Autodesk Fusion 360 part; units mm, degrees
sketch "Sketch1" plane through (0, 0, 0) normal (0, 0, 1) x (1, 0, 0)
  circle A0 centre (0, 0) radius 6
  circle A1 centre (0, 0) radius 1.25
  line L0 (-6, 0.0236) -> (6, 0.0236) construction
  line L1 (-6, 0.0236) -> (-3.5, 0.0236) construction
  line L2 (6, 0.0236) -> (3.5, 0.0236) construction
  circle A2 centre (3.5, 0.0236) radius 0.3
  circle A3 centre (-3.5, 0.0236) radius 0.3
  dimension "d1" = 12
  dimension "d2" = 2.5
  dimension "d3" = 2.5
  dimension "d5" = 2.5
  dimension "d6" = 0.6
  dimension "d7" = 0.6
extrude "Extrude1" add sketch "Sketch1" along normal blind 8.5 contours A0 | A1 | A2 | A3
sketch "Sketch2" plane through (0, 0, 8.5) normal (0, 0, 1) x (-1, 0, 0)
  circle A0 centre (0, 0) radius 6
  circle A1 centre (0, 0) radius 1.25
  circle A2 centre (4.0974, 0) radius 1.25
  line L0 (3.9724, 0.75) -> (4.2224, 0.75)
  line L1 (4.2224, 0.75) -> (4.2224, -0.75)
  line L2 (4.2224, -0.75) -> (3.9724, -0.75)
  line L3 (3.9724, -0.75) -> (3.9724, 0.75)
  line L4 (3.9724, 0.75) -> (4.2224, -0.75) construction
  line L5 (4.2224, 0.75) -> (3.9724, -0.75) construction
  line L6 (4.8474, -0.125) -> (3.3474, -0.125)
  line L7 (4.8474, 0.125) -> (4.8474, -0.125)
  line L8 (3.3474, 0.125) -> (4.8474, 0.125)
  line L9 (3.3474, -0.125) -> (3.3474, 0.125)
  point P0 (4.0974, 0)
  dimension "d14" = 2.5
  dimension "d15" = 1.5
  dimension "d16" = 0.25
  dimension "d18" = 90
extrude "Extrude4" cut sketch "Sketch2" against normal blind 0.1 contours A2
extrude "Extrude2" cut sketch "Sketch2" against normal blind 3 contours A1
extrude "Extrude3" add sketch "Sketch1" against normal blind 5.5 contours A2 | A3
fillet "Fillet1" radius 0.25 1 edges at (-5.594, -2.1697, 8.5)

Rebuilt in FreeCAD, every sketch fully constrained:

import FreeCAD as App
import Part
import Sketcher


def edges_at(feature, points):
    """Names of the edges that pass closest to the given points."""
    edges = feature.Shape.Edges
    near = lambda p: min(range(len(edges)), key=lambda i: edges[i].distToShape(Part.Vertex(*p))[0])
    return sorted({f"Edge{near(p) + 1}" for p in points})

doc = App.newDocument("Part")
body = doc.addObject("PartDesign::Body", "Body")

# Sketch on XY plane
sketch1 = doc.addObject("Sketcher::SketchObject", "Sketch")
body.addObject(sketch1)
sketch1.AttachmentSupport = (doc.XY_Plane, [""])
sketch1.MapMode = "FlatFace"
sketch1.addGeometry(Part.Circle(App.Vector(0, 0, 0), App.Vector(0, 0, 1), 6), False)
sketch1.addConstraint([
    Sketcher.Constraint("Coincident", 0, 3, -1, 1),
    Sketcher.Constraint("Diameter", 0, 12.0),
])
pad1 = doc.addObject("PartDesign::Pad", "Pad")
body.addObject(pad1)
pad1.Profile = sketch1
pad1.Length = 8.5

# Sketch on XY plane
sketch2 = doc.addObject("Sketcher::SketchObject", "Sketch001")
body.addObject(sketch2)
sketch2.AttachmentSupport = (doc.XY_Plane, [""])
sketch2.MapMode = "FlatFace"
sketch2.AttachmentOffset = App.Placement(App.Vector(0, 0, 8.5), App.Rotation())
sketch2.addGeometry([
    Part.Circle(App.Vector(-4.1, 0, 0), App.Vector(0, 0, 1), 1.25),  # 0
    Part.LineSegment(App.Vector(-3.97, -0.12, 0), App.Vector(-3.97, -0.75, 0)),  # 1
    Part.LineSegment(App.Vector(-3.97, -0.75, 0), App.Vector(-4.22, -0.75, 0)),  # 2
    Part.LineSegment(App.Vector(-4.22, -0.75, 0), App.Vector(-4.22, -0.12, 0)),  # 3
    Part.LineSegment(App.Vector(-4.22, -0.12, 0), App.Vector(-4.85, -0.12, 0)),  # 4
    Part.LineSegment(App.Vector(-4.85, -0.12, 0), App.Vector(-4.85, 0.12, 0)),  # 5
    Part.LineSegment(App.Vector(-4.85, 0.12, 0), App.Vector(-4.22, 0.12, 0)),  # 6
    Part.LineSegment(App.Vector(-4.22, 0.12, 0), App.Vector(-4.22, 0.75, 0)),  # 7
    Part.LineSegment(App.Vector(-4.22, 0.75, 0), App.Vector(-3.97, 0.75, 0)),  # 8
    Part.LineSegment(App.Vector(-3.97, 0.75, 0), App.Vector(-3.97, 0.12, 0)),  # 9
    Part.LineSegment(App.Vector(-3.97, 0.12, 0), App.Vector(-3.35, 0.12, 0)),  # 10
    Part.LineSegment(App.Vector(-3.35, 0.12, 0), App.Vector(-3.35, -0.12, 0)),  # 11
    Part.LineSegment(App.Vector(-3.35, -0.12, 0), App.Vector(-3.97, -0.12, 0)),  # 12
], False)
sketch2.addConstraint([
    Sketcher.Constraint("Coincident", 1, 2, 2, 1),
    Sketcher.Constraint("Coincident", 2, 2, 3, 1),
    Sketcher.Constraint("Coincident", 3, 2, 4, 1),
    Sketcher.Constraint("Coincident", 4, 2, 5, 1),
    Sketcher.Constraint("Coincident", 5, 2, 6, 1),
    Sketcher.Constraint("Coincident", 6, 2, 7, 1),
    Sketcher.Constraint("Coincident", 7, 2, 8, 1),
    Sketcher.Constraint("Coincident", 8, 2, 9, 1),
    Sketcher.Constraint("Coincident", 9, 2, 10, 1),
    Sketcher.Constraint("Coincident", 10, 2, 11, 1),
    Sketcher.Constraint("Coincident", 11, 2, 12, 1),
    Sketcher.Constraint("Coincident", 12, 2, 1, 1),
    Sketcher.Constraint("Vertical", 1),
    Sketcher.Constraint("Horizontal", 2),
    Sketcher.Constraint("Vertical", 3),
    Sketcher.Constraint("Horizontal", 4),
    Sketcher.Constraint("Vertical", 5),
    Sketcher.Constraint("Horizontal", 6),
    Sketcher.Constraint("Vertical", 7),
    Sketcher.Constraint("Horizontal", 8),
    Sketcher.Constraint("Vertical", 9),
    Sketcher.Constraint("Horizontal", 10),
    Sketcher.Constraint("Vertical", 11),
    Sketcher.Constraint("Horizontal", 12),
    Sketcher.Constraint("Symmetric", 3, 2, 6, 2, -1),
    Sketcher.Constraint("Symmetric", 1, 2, 8, 2, -1),
    Sketcher.Constraint("PointOnObject", 0, 3, -1),
    Sketcher.Constraint("Horizontal", 6, 2, 9, 2),
    Sketcher.Constraint("Horizontal", 4, 2, 11, 2),
    Sketcher.Constraint("Equal", 6, 10),
    Sketcher.Constraint("Equal", 12, 1),
    Sketcher.Constraint("Equal", 8, 5),
    Sketcher.Constraint("Diameter", 0, 2.5),
    Sketcher.Constraint("DistanceX", 2, 2, 2, 1, 0.25),
    Sketcher.Constraint("DistanceX", 4, 2, 4, 1, 0.625),
    Sketcher.Constraint("DistanceX", 4, 2, 0, 3, 0.75),
    Sketcher.Constraint("DistanceX", 0, 3, -1, 1, 4.0974),
])
pocket1 = doc.addObject("PartDesign::Pocket", "Pocket")
body.addObject(pocket1)
pocket1.Profile = sketch2
pocket1.Length = 0.1

# Sketch on XY plane
sketch3 = doc.addObject("Sketcher::SketchObject", "Sketch002")
body.addObject(sketch3)
sketch3.AttachmentSupport = (doc.XY_Plane, [""])
sketch3.MapMode = "FlatFace"
sketch3.AttachmentOffset = App.Placement(App.Vector(0, 0, 8.5), App.Rotation())
sketch3.addGeometry(Part.Circle(App.Vector(0, 0, 0), App.Vector(0, 0, 1), 1.2), False)
sketch3.addConstraint([
    Sketcher.Constraint("Coincident", 0, 3, -1, 1),
    Sketcher.Constraint("Diameter", 0, 2.5),
])
pocket2 = doc.addObject("PartDesign::Pocket", "Pocket001")
body.addObject(pocket2)
pocket2.Profile = sketch3
pocket2.Length = 3

# Sketch on XY plane
sketch4 = doc.addObject("Sketcher::SketchObject", "Sketch003")
body.addObject(sketch4)
sketch4.AttachmentSupport = (doc.XY_Plane, [""])
sketch4.MapMode = "FlatFace"
sketch4.addGeometry([
    Part.Circle(App.Vector(3.5, 0.02, 0), App.Vector(0, 0, 1), 0.3),
    Part.Circle(App.Vector(-3.5, 0.02, 0), App.Vector(0, 0, 1), 0.3),
], False)
sketch4.addConstraint([
    Sketcher.Constraint("Equal", 0, 1),
    Sketcher.Constraint("Symmetric", 0, 3, 1, 3, -2),
    Sketcher.Constraint("Diameter", 0, 0.6),
    Sketcher.Constraint("DistanceX", 1, 3, 0, 3, 7.0),
    Sketcher.Constraint("DistanceY", -1, 1, 0, 3, 0.0236),
])
pad2 = doc.addObject("PartDesign::Pad", "Pad001")
body.addObject(pad2)
pad2.Profile = sketch4
pad2.Length = 5.5
pad2.Reversed = True
doc.recompute()

fillet = doc.addObject("PartDesign::Fillet", "Fillet")
body.addObject(fillet)
fillet.Base = (pad2, edges_at(pad2, [(-5.594, -2.17, 8.5)]))
fillet.Radius = 0.25

doc.recompute()
